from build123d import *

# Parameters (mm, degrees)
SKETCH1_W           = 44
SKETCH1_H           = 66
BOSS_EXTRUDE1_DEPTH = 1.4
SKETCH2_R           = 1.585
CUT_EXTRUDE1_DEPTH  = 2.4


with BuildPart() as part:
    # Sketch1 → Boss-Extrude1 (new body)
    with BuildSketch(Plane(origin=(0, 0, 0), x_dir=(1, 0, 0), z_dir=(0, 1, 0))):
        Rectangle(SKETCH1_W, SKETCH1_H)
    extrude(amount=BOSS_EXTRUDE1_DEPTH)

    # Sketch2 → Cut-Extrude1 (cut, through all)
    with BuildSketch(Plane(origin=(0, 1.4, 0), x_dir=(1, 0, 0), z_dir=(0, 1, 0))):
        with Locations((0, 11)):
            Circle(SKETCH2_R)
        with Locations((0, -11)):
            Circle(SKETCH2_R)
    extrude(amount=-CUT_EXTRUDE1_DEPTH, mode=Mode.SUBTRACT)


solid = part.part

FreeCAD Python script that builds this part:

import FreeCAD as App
import Part
import Sketcher
from FreeCAD import Vector


def add_polygon(sketch, points):
    """Adds a closed chain of lines whose ends are joined by coincident constraints."""
    first, n = sketch.GeometryCount, len(points)
    for a, b in zip(points, points[1:] + points[:1]):
        sketch.addGeometry(Part.LineSegment(App.Vector(*a, 0), App.Vector(*b, 0)), False)
    for i in range(n):
        sketch.addConstraint(Sketcher.Constraint("Coincident", first + i, 2, first + (i + 1) % n, 1))

doc = App.newDocument("Part")
params = doc.addObject("Spreadsheet::Sheet", "Params")
for row, (alias, value) in enumerate([
    ("sketch1_width", "44 mm"),
    ("sketch1_height", "66 mm"),
    ("pad1_length", "1.4 mm"),
    ("sketch2_diameter", "3.17 mm"),
], start=1):
    params.set(f"A{row}", alias)
    params.set(f"B{row}", "=" + value)
    params.setAlias(f"B{row}", alias)

body = doc.addObject("PartDesign::Body", "Body")

sketch1 = body.newObject("Sketcher::SketchObject", "Sketch")
sketch1.AttachmentSupport = (doc.getObject("XZ_Plane"), [""])
sketch1.MapMode = "FlatFace"
add_polygon(sketch1, [(-22, -33), (-22, 33), (22, 33), (22, -33)])
sketch1.addConstraint([
    Sketcher.Constraint("Vertical", 0),
    Sketcher.Constraint("Horizontal", 1),
    Sketcher.Constraint("Vertical", 2),
    Sketcher.Constraint("Horizontal", 3),
    Sketcher.Constraint("Symmetric", 0, 2, 2, 2, -1, 1),
    Sketcher.Constraint("DistanceX", 1, 1, 1, 2, 44.0),
    Sketcher.Constraint("DistanceY", 0, 1, 0, 2, 66.0),
])
sketch1.setExpression("Constraints[9]", "Params.sketch1_width")
sketch1.setExpression("Constraints[10]", "Params.sketch1_height")
pad1 = body.newObject("PartDesign::Pad", "Pad")
pad1.Profile = sketch1
pad1.setExpression("Length", "Params.pad1_length")
pad1.Reversed = True

sketch2 = body.newObject("Sketcher::SketchObject", "Sketch001")
sketch2.AttachmentSupport = (doc.getObject("XZ_Plane"), [""])
sketch2.MapMode = "FlatFace"
sketch2.AttachmentOffset = App.Placement(Vector(0, 0, -1.4), App.Rotation())
sketch2.addGeometry([
    Part.Circle(Vector(0, -11, 0), Vector(0, 0, 1), 1.6),
    Part.Circle(Vector(0, 11, 0), Vector(0, 0, 1), 1.6),
], False)
sketch2.addConstraint([
    Sketcher.Constraint("Equal", 0, 1),
    Sketcher.Constraint("Symmetric", 0, 3, 1, 3, -1, 1),
    Sketcher.Constraint("PointOnObject", 0, 3, -2),
    Sketcher.Constraint("Diameter", 0, 3.17),
    Sketcher.Constraint("DistanceY", 0, 3, -1, 1, 11.0),
])
sketch2.setExpression("Constraints[3]", "Params.sketch2_diameter")
pocket1 = body.newObject("PartDesign::Pocket", "Pocket")
pocket1.Profile = sketch2
pocket1.Type = "ThroughAll"
pocket1.Reversed = True

doc.recompute()
